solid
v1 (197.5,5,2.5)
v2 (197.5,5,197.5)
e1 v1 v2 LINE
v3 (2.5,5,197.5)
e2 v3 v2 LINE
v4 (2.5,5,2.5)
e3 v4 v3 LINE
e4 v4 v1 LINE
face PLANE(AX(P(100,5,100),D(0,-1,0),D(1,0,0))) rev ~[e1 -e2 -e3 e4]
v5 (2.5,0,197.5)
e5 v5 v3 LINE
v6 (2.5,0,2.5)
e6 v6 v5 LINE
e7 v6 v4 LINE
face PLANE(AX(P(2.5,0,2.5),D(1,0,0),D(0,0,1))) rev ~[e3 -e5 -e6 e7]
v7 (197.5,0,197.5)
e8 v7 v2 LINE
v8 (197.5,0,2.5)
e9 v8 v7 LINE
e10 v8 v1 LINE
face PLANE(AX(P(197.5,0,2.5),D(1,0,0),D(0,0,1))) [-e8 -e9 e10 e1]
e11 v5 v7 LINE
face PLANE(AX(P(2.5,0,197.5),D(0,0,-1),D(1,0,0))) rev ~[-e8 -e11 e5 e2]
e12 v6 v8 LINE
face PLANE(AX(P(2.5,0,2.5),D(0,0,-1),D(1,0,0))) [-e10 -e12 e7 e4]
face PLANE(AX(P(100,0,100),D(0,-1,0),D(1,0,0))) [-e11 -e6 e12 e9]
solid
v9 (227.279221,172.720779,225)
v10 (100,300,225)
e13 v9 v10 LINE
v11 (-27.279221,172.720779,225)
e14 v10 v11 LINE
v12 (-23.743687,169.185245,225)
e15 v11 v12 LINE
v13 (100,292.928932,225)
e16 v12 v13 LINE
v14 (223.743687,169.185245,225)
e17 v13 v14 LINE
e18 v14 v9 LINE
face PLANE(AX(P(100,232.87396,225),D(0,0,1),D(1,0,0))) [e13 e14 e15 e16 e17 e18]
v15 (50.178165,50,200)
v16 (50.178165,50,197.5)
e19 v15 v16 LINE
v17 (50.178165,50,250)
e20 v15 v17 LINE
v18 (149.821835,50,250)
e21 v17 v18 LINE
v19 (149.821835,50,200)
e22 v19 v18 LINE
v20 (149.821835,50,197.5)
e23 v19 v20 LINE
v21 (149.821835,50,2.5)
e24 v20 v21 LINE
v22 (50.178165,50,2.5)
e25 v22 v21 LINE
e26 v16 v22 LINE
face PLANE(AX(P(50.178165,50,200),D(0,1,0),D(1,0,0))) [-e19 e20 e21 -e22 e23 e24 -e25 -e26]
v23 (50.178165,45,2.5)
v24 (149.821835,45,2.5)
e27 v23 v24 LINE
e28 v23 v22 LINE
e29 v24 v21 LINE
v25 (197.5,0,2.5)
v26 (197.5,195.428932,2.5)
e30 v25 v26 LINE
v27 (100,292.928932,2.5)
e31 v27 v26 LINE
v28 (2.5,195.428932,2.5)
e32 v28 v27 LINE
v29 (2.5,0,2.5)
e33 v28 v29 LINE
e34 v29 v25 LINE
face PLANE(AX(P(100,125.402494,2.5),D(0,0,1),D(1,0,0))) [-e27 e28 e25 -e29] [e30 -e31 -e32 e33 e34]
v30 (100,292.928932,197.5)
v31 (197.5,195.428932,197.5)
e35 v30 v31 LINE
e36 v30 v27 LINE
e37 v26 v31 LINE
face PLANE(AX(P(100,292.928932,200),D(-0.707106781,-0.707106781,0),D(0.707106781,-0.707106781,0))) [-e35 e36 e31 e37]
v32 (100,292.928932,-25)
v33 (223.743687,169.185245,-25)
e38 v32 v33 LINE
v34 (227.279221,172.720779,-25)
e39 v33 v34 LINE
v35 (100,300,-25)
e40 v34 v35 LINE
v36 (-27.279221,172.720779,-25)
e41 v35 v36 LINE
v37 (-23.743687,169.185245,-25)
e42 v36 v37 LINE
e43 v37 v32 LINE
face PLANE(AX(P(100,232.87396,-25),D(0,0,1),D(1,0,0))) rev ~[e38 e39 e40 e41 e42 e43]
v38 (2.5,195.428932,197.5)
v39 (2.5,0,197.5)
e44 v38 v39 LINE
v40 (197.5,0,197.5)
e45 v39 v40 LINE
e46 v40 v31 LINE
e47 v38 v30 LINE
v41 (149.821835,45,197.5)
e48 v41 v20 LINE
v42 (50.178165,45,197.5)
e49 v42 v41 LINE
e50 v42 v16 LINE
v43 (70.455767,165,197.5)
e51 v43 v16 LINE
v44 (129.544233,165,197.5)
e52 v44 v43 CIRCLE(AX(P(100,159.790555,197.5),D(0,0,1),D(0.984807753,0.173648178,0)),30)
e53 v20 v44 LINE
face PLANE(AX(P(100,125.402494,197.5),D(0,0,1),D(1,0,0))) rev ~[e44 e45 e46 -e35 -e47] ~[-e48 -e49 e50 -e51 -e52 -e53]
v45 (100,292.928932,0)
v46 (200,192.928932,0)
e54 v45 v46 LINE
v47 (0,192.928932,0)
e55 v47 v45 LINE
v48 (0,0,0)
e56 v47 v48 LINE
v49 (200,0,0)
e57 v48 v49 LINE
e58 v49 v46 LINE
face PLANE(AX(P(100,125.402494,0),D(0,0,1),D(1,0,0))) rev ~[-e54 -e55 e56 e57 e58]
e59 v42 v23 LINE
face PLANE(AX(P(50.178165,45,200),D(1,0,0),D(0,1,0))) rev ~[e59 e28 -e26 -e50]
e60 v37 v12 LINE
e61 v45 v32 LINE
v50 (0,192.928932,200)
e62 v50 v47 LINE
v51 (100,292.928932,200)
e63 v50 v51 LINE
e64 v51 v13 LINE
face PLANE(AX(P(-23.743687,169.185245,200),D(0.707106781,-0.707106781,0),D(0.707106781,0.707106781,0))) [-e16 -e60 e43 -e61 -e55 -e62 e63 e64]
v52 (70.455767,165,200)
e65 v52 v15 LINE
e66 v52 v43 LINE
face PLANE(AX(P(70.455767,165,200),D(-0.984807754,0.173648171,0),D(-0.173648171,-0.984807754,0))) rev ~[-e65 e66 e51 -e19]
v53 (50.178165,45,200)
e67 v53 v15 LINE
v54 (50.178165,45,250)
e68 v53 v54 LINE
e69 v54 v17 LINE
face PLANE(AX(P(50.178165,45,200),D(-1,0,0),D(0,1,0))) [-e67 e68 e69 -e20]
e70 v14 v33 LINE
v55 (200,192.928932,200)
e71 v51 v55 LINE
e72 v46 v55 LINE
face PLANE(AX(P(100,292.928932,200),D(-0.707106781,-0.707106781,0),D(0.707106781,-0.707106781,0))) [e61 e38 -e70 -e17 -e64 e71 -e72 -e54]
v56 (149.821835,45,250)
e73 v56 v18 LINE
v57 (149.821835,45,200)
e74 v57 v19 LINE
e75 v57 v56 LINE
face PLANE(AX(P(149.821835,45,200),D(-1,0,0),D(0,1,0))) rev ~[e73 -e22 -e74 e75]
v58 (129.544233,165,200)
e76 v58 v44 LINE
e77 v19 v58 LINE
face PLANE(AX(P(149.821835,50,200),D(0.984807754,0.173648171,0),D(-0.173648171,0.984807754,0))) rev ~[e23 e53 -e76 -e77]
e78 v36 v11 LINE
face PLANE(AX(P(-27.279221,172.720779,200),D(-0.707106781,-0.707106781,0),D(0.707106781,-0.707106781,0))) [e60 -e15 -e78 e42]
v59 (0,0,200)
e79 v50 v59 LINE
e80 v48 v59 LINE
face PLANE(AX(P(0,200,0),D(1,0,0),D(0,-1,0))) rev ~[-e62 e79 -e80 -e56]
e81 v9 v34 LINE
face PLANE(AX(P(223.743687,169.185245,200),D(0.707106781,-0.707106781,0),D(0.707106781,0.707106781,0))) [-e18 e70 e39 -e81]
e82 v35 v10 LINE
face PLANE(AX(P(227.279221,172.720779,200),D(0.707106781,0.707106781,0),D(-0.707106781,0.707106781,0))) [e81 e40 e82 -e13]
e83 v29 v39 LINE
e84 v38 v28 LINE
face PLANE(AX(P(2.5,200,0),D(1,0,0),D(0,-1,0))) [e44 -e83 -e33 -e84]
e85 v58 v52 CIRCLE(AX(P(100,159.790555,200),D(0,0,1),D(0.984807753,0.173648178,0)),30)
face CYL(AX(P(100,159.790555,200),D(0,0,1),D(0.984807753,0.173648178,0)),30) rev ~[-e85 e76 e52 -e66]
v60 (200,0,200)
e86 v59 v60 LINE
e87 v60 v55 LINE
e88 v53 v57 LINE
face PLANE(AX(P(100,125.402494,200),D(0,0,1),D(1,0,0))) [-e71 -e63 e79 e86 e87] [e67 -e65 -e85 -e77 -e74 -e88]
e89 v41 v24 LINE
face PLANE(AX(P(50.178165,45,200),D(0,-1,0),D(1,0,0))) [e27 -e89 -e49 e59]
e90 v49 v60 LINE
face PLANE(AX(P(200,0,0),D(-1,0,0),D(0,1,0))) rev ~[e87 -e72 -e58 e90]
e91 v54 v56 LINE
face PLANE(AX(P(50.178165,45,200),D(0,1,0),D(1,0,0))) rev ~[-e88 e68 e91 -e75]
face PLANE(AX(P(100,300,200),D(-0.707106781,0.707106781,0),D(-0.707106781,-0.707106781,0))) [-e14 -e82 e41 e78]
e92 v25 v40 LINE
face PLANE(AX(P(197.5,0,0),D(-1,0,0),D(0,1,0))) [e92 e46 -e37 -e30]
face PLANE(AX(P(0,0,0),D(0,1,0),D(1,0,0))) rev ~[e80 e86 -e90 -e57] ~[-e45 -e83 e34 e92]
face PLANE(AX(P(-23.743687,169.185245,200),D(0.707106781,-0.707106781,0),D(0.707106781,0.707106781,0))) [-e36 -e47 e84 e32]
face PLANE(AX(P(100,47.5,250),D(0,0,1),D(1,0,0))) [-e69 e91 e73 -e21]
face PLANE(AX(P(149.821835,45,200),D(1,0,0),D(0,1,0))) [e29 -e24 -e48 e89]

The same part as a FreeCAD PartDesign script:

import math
import FreeCAD as App
import Part
import Sketcher
Q = App.Units.Quantity


def faces_at(feature, points):
    """Names of the faces that lie closest to the given points."""
    faces = feature.Shape.Faces
    near = lambda p: min(range(len(faces)), key=lambda i: faces[i].distToShape(Part.Vertex(*p))[0])
    return sorted({f"Face{near(p) + 1}" for p in points})

doc = App.newDocument("Part")
body = doc.addObject("PartDesign::Body", "Body")

sketch1 = body.newObject("Sketcher::SketchObject", "Sketch")
sketch1.AttachmentSupport = (doc.getObject("XY_Plane"), [""])
sketch1.MapMode = "FlatFace"
sketch1.addGeometry([
    Part.LineSegment(App.Vector(0, 200, 0), App.Vector(0, 0, 0)),
    Part.LineSegment(App.Vector(0, 0, 0), App.Vector(200, 0, 0)),
    Part.LineSegment(App.Vector(200, 0, 0), App.Vector(200, 200, 0)),
    Part.LineSegment(App.Vector(200, 200, 0), App.Vector(100, 300, 0)),
    Part.LineSegment(App.Vector(100, 300, 0), App.Vector(0, 200, 0)),
], False)
sketch1.addConstraint([
    Sketcher.Constraint("Coincident", 0, 2, 1, 1),
    Sketcher.Constraint("Coincident", 1, 2, 2, 1),
    Sketcher.Constraint("Coincident", 2, 2, 3, 1),
    Sketcher.Constraint("Coincident", 3, 2, 4, 1),
    Sketcher.Constraint("Coincident", 4, 2, 0, 1),
    Sketcher.Constraint("Vertical", 0),
    Sketcher.Constraint("Horizontal", 1),
    Sketcher.Constraint("Vertical", 2),
    Sketcher.Constraint("Coincident", 0, 2, -1, 1),
    Sketcher.Constraint("Perpendicular", 3, 4),
    Sketcher.Constraint("Horizontal", 2, 2, 4, 2),
    Sketcher.Constraint("Equal", 1, 0),
    Sketcher.Constraint("Equal", 3, 4),
    Sketcher.Constraint("DistanceX", 1, 1, 1, 2, 200.0),
])
pad1 = body.newObject("PartDesign::Pad", "Pad")
pad1.Profile = sketch1
pad1.Length = 200
doc.recompute()

thickness = body.newObject("PartDesign::Thickness", "Thickness")
thickness.Base = (pad1, faces_at(pad1, [(100, 0, 100)]))
thickness.Value = 2.5
thickness.Reversed = True
thickness.Join = "Arc"

sketch2 = body.newObject("Sketcher::SketchObject", "Sketch001")
sketch2.AttachmentSupport = (doc.getObject("XY_Plane"), [""])
sketch2.MapMode = "FlatFace"
sketch2.AttachmentOffset = App.Placement(App.Vector(0, 0, 200), App.Rotation())
sketch2.addGeometry([
    Part.LineSegment(App.Vector(227, 173, 0), App.Vector(100, 300, 0)),
    Part.LineSegment(App.Vector(100, 300, 0), App.Vector(-27, 173, 0)),
    Part.LineSegment(App.Vector(-27, 173, 0), App.Vector(-24, 169, 0)),
    Part.LineSegment(App.Vector(-24, 169, 0), App.Vector(100, 293, 0)),
    Part.LineSegment(App.Vector(100, 293, 0), App.Vector(224, 169, 0)),
    Part.LineSegment(App.Vector(224, 169, 0), App.Vector(227, 173, 0)),
], False)
sketch2.addConstraint([
    Sketcher.Constraint("Coincident", 0, 2, 1, 1),
    Sketcher.Constraint("Coincident", 1, 2, 2, 1),
    Sketcher.Constraint("Coincident", 2, 2, 3, 1),
    Sketcher.Constraint("Coincident", 3, 2, 4, 1),
    Sketcher.Constraint("Coincident", 4, 2, 5, 1),
    Sketcher.Constraint("Coincident", 5, 2, 0, 1),
    Sketcher.Constraint("Perpendicular", 0, 1),
    Sketcher.Constraint("Perpendicular", 1, 2),
    Sketcher.Constraint("Perpendicular", 2, 3),
    Sketcher.Constraint("Perpendicular", 3, 4),
    Sketcher.Constraint("Perpendicular", 4, 5),
    Sketcher.Constraint("Horizontal", 2, 2, 4, 2),
    Sketcher.Constraint("Horizontal", 1, 2, 5, 2),
    Sketcher.Constraint("Vertical", 0, 2, 3, 2),
    Sketcher.Constraint("Distance", 0, 180.000001),
    Sketcher.Constraint("Distance", 2, 5.0),
    Sketcher.Constraint("DistanceX", -1, 1, 0, 2, 100.0),
    Sketcher.Constraint("DistanceY", -1, 1, 0, 2, 300.0),
])
pad2 = body.newObject("PartDesign::Pad", "Pad001")
pad2.Profile = sketch2
pad2.Type = "TwoLengths"
pad2.Length = 25
pad2.Length2 = 225

sketch3 = body.newObject("Sketcher::SketchObject", "Sketch002")
sketch3.AttachmentSupport = (doc.getObject("XY_Plane"), [""])
sketch3.MapMode = "FlatFace"
sketch3.AttachmentOffset = App.Placement(App.Vector(0, 0, 200), App.Rotation())
sketch3.addGeometry([
    Part.LineSegment(App.Vector(150, 50, 0), App.Vector(130, 165, 0)),
    Part.ArcOfCircle(Part.Circle(App.Vector(100, 160, 0), App.Vector(0, 0, 1), 30), math.radians(10), math.radians(170)),
    Part.LineSegment(App.Vector(70, 165, 0), App.Vector(50, 50, 0)),
    Part.LineSegment(App.Vector(50, 50, 0), App.Vector(150, 50, 0)),
], False)
sketch3.addConstraint([
    Sketcher.Constraint("Tangent", 0, 2, 1, 1),
    Sketcher.Constraint("Tangent", 1, 2, 2, 1),
    Sketcher.Constraint("Coincident", 2, 2, 3, 1),
    Sketcher.Constraint("Coincident", 3, 2, 0, 1),
    Sketcher.Constraint("Horizontal", 3),
    Sketcher.Constraint("Horizontal", 0, 2, 1, 2),
    Sketcher.Constraint("Radius", 1, 30.0),
    Sketcher.Constraint("Angle", 0, Q("100 deg")),
    Sketcher.Constraint("DistanceX", -1, 1, 1, 3, 100.0),
    Sketcher.Constraint("DistanceY", -1, 1, 0, 2, 165.0),
    Sketcher.Constraint("DistanceY", -1, 1, 2, 2, 50.0),
])
pocket1 = body.newObject("PartDesign::Pocket", "Pocket")
pocket1.Profile = sketch3
pocket1.Length = 25

sketch4 = body.newObject("Sketcher::SketchObject", "Sketch003")
sketch4.AttachmentSupport = (doc.getObject("XY_Plane"), [""])
sketch4.MapMode = "FlatFace"
sketch4.AttachmentOffset = App.Placement(App.Vector(0, 0, 200), App.Rotation())
sketch4.addGeometry([
    Part.LineSegment(App.Vector(50, 50, 0), App.Vector(50, 45, 0)),
    Part.LineSegment(App.Vector(50, 45, 0), App.Vector(150, 45, 0)),
    Part.LineSegment(App.Vector(150, 45, 0), App.Vector(150, 50, 0)),
    Part.LineSegment(App.Vector(150, 50, 0), App.Vector(50, 50, 0)),
], False)
sketch4.addConstraint([
    Sketcher.Constraint("Coincident", 0, 2, 1, 1),
    Sketcher.Constraint("Coincident", 1, 2, 2, 1),
    Sketcher.Constraint("Coincident", 2, 2, 3, 1),
    Sketcher.Constraint("Coincident", 3, 2, 0, 1),
    Sketcher.Constraint("Vertical", 0),
    Sketcher.Constraint("Horizontal", 1),
    Sketcher.Constraint("Vertical", 2),
    Sketcher.Constraint("Horizontal", 3),
    Sketcher.Constraint("DistanceY", 0, 2, 0, 1, 5.0),
    Sketcher.Constraint("DistanceY", -1, 1, 0, 2, 45.0),
    Sketcher.Constraint("DistanceX", 1, 1, 1, 2, 99.64367),
    Sketcher.Constraint("DistanceX", -1, 1, 0, 2, 50.178165),
])
pad3 = body.newObject("PartDesign::Pad", "Pad002")
pad3.Profile = sketch4
pad3.Type = "TwoLengths"
pad3.Length = 50
pad3.Length2 = 200
body2 = doc.addObject("PartDesign::Body", "Body001")

sketch5 = body2.newObject("Sketcher::SketchObject", "Sketch004")
sketch5.AttachmentSupport = (doc.getObject("XZ_Plane001"), [""])
sketch5.MapMode = "FlatFace"
sketch5.addGeometry([
    Part.LineSegment(App.Vector(2, 198, 0), App.Vector(2, 2, 0)),
    Part.LineSegment(App.Vector(2, 2, 0), App.Vector(198, 2, 0)),
    Part.LineSegment(App.Vector(198, 2, 0), App.Vector(198, 198, 0)),
    Part.LineSegment(App.Vector(198, 198, 0), App.Vector(2, 198, 0)),
], False)
sketch5.addConstraint([
    Sketcher.Constraint("Coincident", 0, 2, 1, 1),
    Sketcher.Constraint("Coincident", 1, 2, 2, 1),
    Sketcher.Constraint("Coincident", 2, 2, 3, 1),
    Sketcher.Constraint("Coincident", 3, 2, 0, 1),
    Sketcher.Constraint("Vertical", 0),
    Sketcher.Constraint("Horizontal", 1),
    Sketcher.Constraint("Vertical", 2),
    Sketcher.Constraint("Horizontal", 3),
    Sketcher.Constraint("Equal", 3, 0),
    Sketcher.Constraint("DistanceX", 1, 1, 1, 2, 195.0),
    Sketcher.Constraint("DistanceX", -1, 1, 0, 2, 2.5),
    Sketcher.Constraint("DistanceY", -1, 1, 0, 2, 2.5),
])
pad4 = body2.newObject("PartDesign::Pad", "Pad003")
pad4.Profile = sketch5
pad4.Length = 5
pad4.Reversed = True

doc.recompute()
